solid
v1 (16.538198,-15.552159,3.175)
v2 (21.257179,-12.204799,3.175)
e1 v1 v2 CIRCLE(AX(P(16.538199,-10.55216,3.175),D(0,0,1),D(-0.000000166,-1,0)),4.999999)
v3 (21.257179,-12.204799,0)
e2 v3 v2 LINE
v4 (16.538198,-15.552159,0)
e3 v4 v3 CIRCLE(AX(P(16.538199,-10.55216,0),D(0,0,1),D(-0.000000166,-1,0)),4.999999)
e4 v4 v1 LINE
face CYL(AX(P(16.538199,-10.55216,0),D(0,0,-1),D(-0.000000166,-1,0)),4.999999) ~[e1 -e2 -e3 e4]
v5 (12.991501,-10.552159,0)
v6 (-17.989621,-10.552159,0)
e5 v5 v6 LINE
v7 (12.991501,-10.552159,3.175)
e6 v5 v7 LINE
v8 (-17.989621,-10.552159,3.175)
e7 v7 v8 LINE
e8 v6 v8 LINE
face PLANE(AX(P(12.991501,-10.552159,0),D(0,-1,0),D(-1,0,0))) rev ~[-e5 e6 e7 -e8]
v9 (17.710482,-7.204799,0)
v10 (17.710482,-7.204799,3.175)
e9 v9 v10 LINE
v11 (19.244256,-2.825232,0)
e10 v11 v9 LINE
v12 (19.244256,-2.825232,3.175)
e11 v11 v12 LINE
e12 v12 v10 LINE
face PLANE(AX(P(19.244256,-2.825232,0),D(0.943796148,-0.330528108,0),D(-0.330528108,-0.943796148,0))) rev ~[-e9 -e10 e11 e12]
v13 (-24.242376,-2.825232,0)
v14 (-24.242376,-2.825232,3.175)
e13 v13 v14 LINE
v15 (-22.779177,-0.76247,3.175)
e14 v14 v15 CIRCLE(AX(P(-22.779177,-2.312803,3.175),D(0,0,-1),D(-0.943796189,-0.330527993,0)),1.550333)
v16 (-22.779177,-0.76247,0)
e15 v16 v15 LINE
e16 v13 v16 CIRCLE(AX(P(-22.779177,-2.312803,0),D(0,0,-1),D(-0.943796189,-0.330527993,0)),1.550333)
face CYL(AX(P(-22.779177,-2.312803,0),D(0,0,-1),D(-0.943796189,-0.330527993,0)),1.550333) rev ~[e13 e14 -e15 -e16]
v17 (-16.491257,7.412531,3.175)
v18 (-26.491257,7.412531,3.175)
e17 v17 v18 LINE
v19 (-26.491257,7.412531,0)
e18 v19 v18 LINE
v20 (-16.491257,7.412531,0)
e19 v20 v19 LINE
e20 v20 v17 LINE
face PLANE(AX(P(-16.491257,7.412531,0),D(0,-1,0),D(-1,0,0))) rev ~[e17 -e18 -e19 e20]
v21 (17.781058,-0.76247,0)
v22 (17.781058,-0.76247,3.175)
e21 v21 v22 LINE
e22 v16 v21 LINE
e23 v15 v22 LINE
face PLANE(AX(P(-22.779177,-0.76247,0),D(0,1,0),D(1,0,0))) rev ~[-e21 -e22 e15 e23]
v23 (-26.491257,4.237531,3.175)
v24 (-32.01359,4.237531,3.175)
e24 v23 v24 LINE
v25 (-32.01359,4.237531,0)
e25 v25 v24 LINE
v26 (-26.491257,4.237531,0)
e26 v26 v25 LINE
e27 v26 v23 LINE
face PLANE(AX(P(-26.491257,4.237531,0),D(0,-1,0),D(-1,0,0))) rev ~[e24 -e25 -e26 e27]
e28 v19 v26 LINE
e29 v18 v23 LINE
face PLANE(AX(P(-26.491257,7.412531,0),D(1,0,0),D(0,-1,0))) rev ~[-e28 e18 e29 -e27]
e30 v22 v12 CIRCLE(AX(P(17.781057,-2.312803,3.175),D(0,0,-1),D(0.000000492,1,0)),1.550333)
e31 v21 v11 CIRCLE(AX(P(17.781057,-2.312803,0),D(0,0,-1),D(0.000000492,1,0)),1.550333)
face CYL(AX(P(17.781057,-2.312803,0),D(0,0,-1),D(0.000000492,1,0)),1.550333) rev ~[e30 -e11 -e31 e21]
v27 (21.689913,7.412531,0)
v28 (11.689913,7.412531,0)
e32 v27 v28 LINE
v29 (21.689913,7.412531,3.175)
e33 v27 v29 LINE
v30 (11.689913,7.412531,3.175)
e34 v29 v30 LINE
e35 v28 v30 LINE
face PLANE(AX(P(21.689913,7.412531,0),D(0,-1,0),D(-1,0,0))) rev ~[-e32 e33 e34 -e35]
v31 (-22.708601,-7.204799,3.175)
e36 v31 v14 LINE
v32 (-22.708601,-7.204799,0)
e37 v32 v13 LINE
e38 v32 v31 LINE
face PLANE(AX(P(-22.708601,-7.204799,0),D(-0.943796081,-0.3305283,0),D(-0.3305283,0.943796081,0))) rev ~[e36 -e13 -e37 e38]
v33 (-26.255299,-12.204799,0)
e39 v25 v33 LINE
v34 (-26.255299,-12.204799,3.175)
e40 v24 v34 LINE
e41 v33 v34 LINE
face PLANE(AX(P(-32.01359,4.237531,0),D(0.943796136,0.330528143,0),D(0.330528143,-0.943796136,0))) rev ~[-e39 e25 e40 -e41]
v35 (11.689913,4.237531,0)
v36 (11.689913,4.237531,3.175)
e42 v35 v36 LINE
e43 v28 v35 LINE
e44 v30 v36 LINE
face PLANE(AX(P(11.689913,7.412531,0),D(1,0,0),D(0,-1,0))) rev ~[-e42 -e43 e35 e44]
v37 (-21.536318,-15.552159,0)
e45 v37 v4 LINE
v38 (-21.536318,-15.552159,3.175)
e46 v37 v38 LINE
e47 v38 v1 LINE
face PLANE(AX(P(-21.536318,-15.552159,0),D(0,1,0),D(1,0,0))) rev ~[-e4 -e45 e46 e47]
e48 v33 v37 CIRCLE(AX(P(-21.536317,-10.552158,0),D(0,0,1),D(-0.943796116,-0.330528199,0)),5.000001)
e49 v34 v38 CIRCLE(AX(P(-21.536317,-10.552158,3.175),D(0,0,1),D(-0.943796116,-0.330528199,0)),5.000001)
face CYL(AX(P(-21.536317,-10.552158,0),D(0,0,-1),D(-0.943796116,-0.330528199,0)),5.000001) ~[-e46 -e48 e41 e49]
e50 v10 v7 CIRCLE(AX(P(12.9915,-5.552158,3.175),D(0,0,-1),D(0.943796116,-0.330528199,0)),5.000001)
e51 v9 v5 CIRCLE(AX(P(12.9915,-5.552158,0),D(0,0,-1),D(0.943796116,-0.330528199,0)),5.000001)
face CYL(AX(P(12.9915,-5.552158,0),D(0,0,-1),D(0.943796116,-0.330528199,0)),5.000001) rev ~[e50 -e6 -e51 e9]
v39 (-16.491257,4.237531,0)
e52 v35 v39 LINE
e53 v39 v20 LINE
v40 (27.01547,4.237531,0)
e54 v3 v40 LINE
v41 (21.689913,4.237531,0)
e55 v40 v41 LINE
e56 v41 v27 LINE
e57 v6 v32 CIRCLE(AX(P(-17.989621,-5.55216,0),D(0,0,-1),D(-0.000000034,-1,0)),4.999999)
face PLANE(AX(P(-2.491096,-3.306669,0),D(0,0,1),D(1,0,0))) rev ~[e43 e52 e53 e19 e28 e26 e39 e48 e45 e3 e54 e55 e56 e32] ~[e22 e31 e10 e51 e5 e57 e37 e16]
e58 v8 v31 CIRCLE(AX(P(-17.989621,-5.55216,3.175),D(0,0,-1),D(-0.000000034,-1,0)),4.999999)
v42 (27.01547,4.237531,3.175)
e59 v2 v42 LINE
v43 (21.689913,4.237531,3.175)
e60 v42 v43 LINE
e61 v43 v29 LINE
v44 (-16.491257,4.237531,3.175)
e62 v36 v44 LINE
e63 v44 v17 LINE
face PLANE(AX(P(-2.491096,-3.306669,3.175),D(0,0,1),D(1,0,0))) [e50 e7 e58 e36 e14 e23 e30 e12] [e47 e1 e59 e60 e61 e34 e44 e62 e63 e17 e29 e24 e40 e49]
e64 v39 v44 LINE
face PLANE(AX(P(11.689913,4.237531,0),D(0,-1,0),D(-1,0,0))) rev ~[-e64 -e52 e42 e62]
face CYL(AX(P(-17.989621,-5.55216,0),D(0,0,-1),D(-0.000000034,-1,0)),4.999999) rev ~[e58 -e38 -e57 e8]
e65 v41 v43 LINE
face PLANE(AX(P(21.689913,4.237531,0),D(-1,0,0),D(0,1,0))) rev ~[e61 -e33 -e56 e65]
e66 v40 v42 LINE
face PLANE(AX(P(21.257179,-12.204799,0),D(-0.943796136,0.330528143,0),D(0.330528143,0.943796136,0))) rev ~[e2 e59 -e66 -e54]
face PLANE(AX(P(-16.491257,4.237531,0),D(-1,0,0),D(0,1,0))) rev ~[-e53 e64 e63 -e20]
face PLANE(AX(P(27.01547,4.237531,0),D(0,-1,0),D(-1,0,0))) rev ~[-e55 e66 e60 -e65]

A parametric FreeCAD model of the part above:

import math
import FreeCAD as App
import Part
import Sketcher
from FreeCAD import Vector

doc = App.newDocument("Part")
body = doc.addObject("PartDesign::Body", "Body")

sketch1 = body.newObject("Sketcher::SketchObject", "Sketch")
sketch1.AttachmentSupport = (doc.getObject("XY_Plane"), [""])
sketch1.MapMode = "FlatFace"
sketch1.addGeometry([
    Part.LineSegment(Vector(27.01547, 4.237531, 0), Vector(21.689913, 4.237531, 0)),
    Part.LineSegment(Vector(21.689913, 4.237531, 0), Vector(21.689913, 7.412531, 0)),
    Part.LineSegment(Vector(21.689913, 7.412531, 0), Vector(11.689913, 7.412531, 0)),
    Part.LineSegment(Vector(11.689913, 7.412531, 0), Vector(11.689913, 4.237531, 0)),
    Part.LineSegment(Vector(11.689913, 4.237531, 0), Vector(-16.491257, 4.237531, 0)),
    Part.LineSegment(Vector(-16.491257, 4.237531, 0), Vector(-16.491257, 7.412531, 0)),
    Part.LineSegment(Vector(-16.491257, 7.412531, 0), Vector(-26.491257, 7.412531, 0)),
    Part.LineSegment(Vector(-26.491257, 7.412531, 0), Vector(-26.491257, 4.237531, 0)),
    Part.LineSegment(Vector(-26.491257, 4.237531, 0), Vector(-32.01359, 4.237531, 0)),
    Part.LineSegment(Vector(-32.01359, 4.237531, 0), Vector(-26.255299, -12.204799, 0)),
    Part.ArcOfCircle(Part.Circle(Vector(-21.536317, -10.552158, 0), Vector(0, 0, 1), 5.000001), math.radians(-160.699162), math.radians(-90.000011)),
    Part.LineSegment(Vector(-21.536318, -15.552159, 0), Vector(16.538198, -15.552159, 0)),
    Part.ArcOfCircle(Part.Circle(Vector(16.538199, -10.55216, 0), Vector(0, 0, 1), 4.999999), math.radians(-90.000009), math.radians(-19.300817)),
    Part.LineSegment(Vector(21.257179, -12.204799, 0), Vector(27.01547, 4.237531, 0)),
    Part.LineSegment(Vector(19.244256, -2.825232, 0), Vector(17.710482, -7.204799, 0)),
    Part.ArcOfCircle(Part.Circle(Vector(12.9915, -5.552158, 0), Vector(0, 0, 1), 5.000001), math.radians(-89.999989), math.radians(-19.300838)),
    Part.LineSegment(Vector(12.991501, -10.552159, 0), Vector(-17.989621, -10.552159, 0)),
    Part.ArcOfCircle(Part.Circle(Vector(-17.989621, -5.55216, 0), Vector(0, 0, 1), 4.999999), math.radians(-160.699183), math.radians(-90.000002)),
    Part.LineSegment(Vector(-22.708601, -7.204799, 0), Vector(-24.242376, -2.825232, 0)),
    Part.ArcOfCircle(Part.Circle(Vector(-22.779177, -2.312803, 0), Vector(0, 0, 1), 1.550333), math.radians(89.999991), math.radians(199.300826)),
    Part.LineSegment(Vector(-22.779177, -0.76247, 0), Vector(17.781058, -0.76247, 0)),
    Part.ArcOfCircle(Part.Circle(Vector(17.781057, -2.312803, 0), Vector(0, 0, 1), 1.550333), math.radians(-19.300826), math.radians(89.999972)),
], False)
sketch1.addConstraint([
    Sketcher.Constraint("Coincident", 0, 2, 1, 1),
    Sketcher.Constraint("Coincident", 1, 2, 2, 1),
    Sketcher.Constraint("Coincident", 2, 2, 3, 1),
    Sketcher.Constraint("Coincident", 3, 2, 4, 1),
    Sketcher.Constraint("Coincident", 4, 2, 5, 1),
    Sketcher.Constraint("Coincident", 5, 2, 6, 1),
    Sketcher.Constraint("Coincident", 6, 2, 7, 1),
    Sketcher.Constraint("Coincident", 7, 2, 8, 1),
    Sketcher.Constraint("Coincident", 8, 2, 9, 1),
    Sketcher.Constraint("Coincident", 9, 2, 10, 1),
    Sketcher.Constraint("Coincident", 10, 2, 11, 1),
    Sketcher.Constraint("Coincident", 11, 2, 12, 1),
    Sketcher.Constraint("Coincident", 12, 2, 13, 1),
    Sketcher.Constraint("Coincident", 13, 2, 0, 1),
    Sketcher.Constraint("Coincident", 14, 2, 15, 2),
    Sketcher.Constraint("Coincident", 15, 1, 16, 1),
    Sketcher.Constraint("Coincident", 16, 2, 17, 2),
    Sketcher.Constraint("Coincident", 17, 1, 18, 1),
    Sketcher.Constraint("Coincident", 18, 2, 19, 2),
    Sketcher.Constraint("Coincident", 19, 1, 20, 1),
    Sketcher.Constraint("Coincident", 20, 2, 21, 2),
    Sketcher.Constraint("Coincident", 21, 1, 14, 1),
    Sketcher.Constraint("Horizontal", 0),
    Sketcher.Constraint("Vertical", 1),
    Sketcher.Constraint("Horizontal", 2),
    Sketcher.Constraint("Vertical", 3),
    Sketcher.Constraint("Horizontal", 4),
    Sketcher.Constraint("Vertical", 5),
    Sketcher.Constraint("Horizontal", 6),
    Sketcher.Constraint("Vertical", 7),
    Sketcher.Constraint("Horizontal", 8),
    Sketcher.Constraint("Horizontal", 11),
    Sketcher.Constraint("Horizontal", 16),
    Sketcher.Constraint("Horizontal", 20),
    Sketcher.Constraint("Radius", 10, 5.000001),
    Sketcher.Constraint("Radius", 12, 4.999999),
    Sketcher.Constraint("Radius", 15, 5.000001),
    Sketcher.Constraint("Radius", 17, 4.999999),
    Sketcher.Constraint("DistanceX", 2, 2, 2, 1, 10.0),
    Sketcher.Constraint("DistanceX", 6, 2, 6, 1, 10.0),
    Sketcher.Constraint("DistanceY", 10, 3, 15, 3, 5.0),
    Sketcher.Constraint("DistanceY", 12, 2, 14, 2, 5.0),
    Sketcher.Constraint("DistanceY", 9, 2, 17, 1, 5.0),
    Sketcher.Constraint("DistanceY", 19, 1, 7, 2, 5.000001),
    Sketcher.Constraint("DistanceY", 20, 2, 0, 2, 5.000001),
    Sketcher.Constraint("DistanceY", 20, 2, 3, 2, 5.000001),
    Sketcher.Constraint("DistanceY", 1, 1, 1, 2, 3.175),
    Sketcher.Constraint("DistanceY", 5, 1, 5, 2, 3.175),
    Sketcher.Constraint("Radius", 19, 1.550333),
    Sketcher.Constraint("Radius", 21, 1.550333),
    Sketcher.Constraint("DistanceX", 4, 2, 4, 1, 28.18117),
    Sketcher.Constraint("DistanceX", 16, 2, 16, 1, 30.981122),
    Sketcher.Constraint("DistanceX", -1, 1, 12, 3, 16.538199),
    Sketcher.Constraint("DistanceX", -1, 1, 15, 3, 12.9915),
    Sketcher.Constraint("DistanceX", 9, 2, -1, 1, 26.255299),
    Sketcher.Constraint("DistanceY", 9, 2, -1, 1, 12.204799),
    Sketcher.Constraint("DistanceX", -1, 1, 11, 2, 16.538198),
    Sketcher.Constraint("DistanceY", 12, 2, -1, 1, 12.204799),
    Sketcher.Constraint("DistanceX", -1, 1, 15, 1, 12.991501),
    Sketcher.Constraint("DistanceX", 17, 1, -1, 1, 22.708601),
    Sketcher.Constraint("DistanceX", 18, 2, 19, 3, 1.463199),
    Sketcher.Constraint("DistanceX", 18, 2, 19, 1, 1.463199),
    Sketcher.Constraint("DistanceX", 21, 3, 21, 1, 1.463199),
    Sketcher.Constraint("DistanceX", 0, 2, 0, 1, 5.325557),
    Sketcher.Constraint("DistanceX", 8, 2, 8, 1, 5.522333),
    Sketcher.Constraint("DistanceX", 11, 1, 11, 2, 38.074516),
    Sketcher.Constraint("DistanceX", 20, 1, 20, 2, 40.560235),
    Sketcher.Constraint("DistanceY", 12, 3, -1, 1, 10.55216),
    Sketcher.Constraint("DistanceY", -1, 1, 0, 2, 4.237531),
    Sketcher.Constraint("DistanceX", 8, 2, -1, 1, 32.01359),
    Sketcher.Constraint("DistanceX", -1, 1, 20, 2, 17.781058),
    Sketcher.Constraint("DistanceX", 12, 3, 21, 3, 1.242858),
])
pad1 = body.newObject("PartDesign::Pad", "Pad")
pad1.Profile = sketch1
pad1.Length = 3.175

doc.recompute()
